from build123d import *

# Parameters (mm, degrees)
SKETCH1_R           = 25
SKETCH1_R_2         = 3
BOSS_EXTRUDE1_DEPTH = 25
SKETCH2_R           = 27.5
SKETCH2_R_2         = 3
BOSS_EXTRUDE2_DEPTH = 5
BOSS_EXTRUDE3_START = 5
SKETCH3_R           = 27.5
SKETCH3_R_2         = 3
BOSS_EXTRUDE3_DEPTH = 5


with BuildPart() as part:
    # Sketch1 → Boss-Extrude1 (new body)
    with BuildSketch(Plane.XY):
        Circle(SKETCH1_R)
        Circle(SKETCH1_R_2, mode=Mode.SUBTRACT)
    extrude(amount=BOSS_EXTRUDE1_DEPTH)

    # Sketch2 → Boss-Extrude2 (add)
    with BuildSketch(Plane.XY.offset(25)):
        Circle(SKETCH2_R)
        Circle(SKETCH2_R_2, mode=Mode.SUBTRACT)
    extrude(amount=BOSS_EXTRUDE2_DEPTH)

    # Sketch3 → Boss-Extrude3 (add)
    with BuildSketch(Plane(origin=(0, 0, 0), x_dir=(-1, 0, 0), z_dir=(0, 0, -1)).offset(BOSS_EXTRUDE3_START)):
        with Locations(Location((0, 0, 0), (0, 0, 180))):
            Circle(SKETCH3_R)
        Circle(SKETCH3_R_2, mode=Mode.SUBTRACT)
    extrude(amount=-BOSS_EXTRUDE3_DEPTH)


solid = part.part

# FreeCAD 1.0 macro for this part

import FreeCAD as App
import Part
import Sketcher
from FreeCAD import Vector

doc = App.newDocument("Part")
body = doc.addObject("PartDesign::Body", "Body")

sketch1 = body.newObject("Sketcher::SketchObject", "Sketch")
sketch1.AttachmentSupport = (doc.getObject("XY_Plane"), [""])
sketch1.MapMode = "FlatFace"
sketch1.addGeometry(Part.Circle(Vector(0, 0, 0), Vector(0, 0, 1), 25), False)
sketch1.addGeometry(Part.Circle(Vector(0, 0, 0), Vector(0, 0, 1), 3), False)
sketch1.addConstraint(Sketcher.Constraint("Coincident", 0, 3, -1, 1))
sketch1.addConstraint(Sketcher.Constraint("Coincident", 1, 3, -1, 1))
sketch1.addConstraint(Sketcher.Constraint("Diameter", 0, 50.0))
sketch1.addConstraint(Sketcher.Constraint("Diameter", 1, 6.0))
pad1 = body.newObject("PartDesign::Pad", "Pad")
pad1.Profile = sketch1
pad1.Length = 25

sketch2 = body.newObject("Sketcher::SketchObject", "Sketch001")
sketch2.AttachmentSupport = (doc.getObject("XY_Plane"), [""])
sketch2.MapMode = "FlatFace"
sketch2.AttachmentOffset = App.Placement(Vector(0, 0, 25), App.Rotation())
sketch2.addGeometry(Part.Circle(Vector(0, 0, 0), Vector(0, 0, 1), 27.5), False)
sketch2.addGeometry(Part.Circle(Vector(0, 0, 0), Vector(0, 0, 1), 3), False)
sketch2.addConstraint(Sketcher.Constraint("Coincident", 0, 3, -1, 1))
sketch2.addConstraint(Sketcher.Constraint("Coincident", 1, 3, -1, 1))
sketch2.addConstraint(Sketcher.Constraint("Diameter", 0, 55.0))
sketch2.addConstraint(Sketcher.Constraint("Diameter", 1, 6.0))
pad2 = body.newObject("PartDesign::Pad", "Pad001")
pad2.Profile = sketch2
pad2.Length = 5

sketch3 = body.newObject("Sketcher::SketchObject", "Sketch002")
sketch3.AttachmentSupport = (doc.getObject("XY_Plane"), [""])
sketch3.MapMode = "FlatFace"
sketch3.AttachmentOffset = App.Placement(Vector(0, 0, -5), App.Rotation())
sketch3.addGeometry(Part.Circle(Vector(0, 0, 0), Vector(0, 0, 1), 27.5), False)
sketch3.addGeometry(Part.Circle(Vector(0, 0, 0), Vector(0, 0, 1), 3), False)
sketch3.addConstraint(Sketcher.Constraint("Coincident", 0, 3, -1, 1))
sketch3.addConstraint(Sketcher.Constraint("Coincident", 1, 3, -1, 1))
sketch3.addConstraint(Sketcher.Constraint("Diameter", 0, 55.0))
sketch3.addConstraint(Sketcher.Constraint("Diameter", 1, 6.0))
pad3 = body.newObject("PartDesign::Pad", "Pad002")
pad3.Profile = sketch3
pad3.Length = 5

doc.recompute()
